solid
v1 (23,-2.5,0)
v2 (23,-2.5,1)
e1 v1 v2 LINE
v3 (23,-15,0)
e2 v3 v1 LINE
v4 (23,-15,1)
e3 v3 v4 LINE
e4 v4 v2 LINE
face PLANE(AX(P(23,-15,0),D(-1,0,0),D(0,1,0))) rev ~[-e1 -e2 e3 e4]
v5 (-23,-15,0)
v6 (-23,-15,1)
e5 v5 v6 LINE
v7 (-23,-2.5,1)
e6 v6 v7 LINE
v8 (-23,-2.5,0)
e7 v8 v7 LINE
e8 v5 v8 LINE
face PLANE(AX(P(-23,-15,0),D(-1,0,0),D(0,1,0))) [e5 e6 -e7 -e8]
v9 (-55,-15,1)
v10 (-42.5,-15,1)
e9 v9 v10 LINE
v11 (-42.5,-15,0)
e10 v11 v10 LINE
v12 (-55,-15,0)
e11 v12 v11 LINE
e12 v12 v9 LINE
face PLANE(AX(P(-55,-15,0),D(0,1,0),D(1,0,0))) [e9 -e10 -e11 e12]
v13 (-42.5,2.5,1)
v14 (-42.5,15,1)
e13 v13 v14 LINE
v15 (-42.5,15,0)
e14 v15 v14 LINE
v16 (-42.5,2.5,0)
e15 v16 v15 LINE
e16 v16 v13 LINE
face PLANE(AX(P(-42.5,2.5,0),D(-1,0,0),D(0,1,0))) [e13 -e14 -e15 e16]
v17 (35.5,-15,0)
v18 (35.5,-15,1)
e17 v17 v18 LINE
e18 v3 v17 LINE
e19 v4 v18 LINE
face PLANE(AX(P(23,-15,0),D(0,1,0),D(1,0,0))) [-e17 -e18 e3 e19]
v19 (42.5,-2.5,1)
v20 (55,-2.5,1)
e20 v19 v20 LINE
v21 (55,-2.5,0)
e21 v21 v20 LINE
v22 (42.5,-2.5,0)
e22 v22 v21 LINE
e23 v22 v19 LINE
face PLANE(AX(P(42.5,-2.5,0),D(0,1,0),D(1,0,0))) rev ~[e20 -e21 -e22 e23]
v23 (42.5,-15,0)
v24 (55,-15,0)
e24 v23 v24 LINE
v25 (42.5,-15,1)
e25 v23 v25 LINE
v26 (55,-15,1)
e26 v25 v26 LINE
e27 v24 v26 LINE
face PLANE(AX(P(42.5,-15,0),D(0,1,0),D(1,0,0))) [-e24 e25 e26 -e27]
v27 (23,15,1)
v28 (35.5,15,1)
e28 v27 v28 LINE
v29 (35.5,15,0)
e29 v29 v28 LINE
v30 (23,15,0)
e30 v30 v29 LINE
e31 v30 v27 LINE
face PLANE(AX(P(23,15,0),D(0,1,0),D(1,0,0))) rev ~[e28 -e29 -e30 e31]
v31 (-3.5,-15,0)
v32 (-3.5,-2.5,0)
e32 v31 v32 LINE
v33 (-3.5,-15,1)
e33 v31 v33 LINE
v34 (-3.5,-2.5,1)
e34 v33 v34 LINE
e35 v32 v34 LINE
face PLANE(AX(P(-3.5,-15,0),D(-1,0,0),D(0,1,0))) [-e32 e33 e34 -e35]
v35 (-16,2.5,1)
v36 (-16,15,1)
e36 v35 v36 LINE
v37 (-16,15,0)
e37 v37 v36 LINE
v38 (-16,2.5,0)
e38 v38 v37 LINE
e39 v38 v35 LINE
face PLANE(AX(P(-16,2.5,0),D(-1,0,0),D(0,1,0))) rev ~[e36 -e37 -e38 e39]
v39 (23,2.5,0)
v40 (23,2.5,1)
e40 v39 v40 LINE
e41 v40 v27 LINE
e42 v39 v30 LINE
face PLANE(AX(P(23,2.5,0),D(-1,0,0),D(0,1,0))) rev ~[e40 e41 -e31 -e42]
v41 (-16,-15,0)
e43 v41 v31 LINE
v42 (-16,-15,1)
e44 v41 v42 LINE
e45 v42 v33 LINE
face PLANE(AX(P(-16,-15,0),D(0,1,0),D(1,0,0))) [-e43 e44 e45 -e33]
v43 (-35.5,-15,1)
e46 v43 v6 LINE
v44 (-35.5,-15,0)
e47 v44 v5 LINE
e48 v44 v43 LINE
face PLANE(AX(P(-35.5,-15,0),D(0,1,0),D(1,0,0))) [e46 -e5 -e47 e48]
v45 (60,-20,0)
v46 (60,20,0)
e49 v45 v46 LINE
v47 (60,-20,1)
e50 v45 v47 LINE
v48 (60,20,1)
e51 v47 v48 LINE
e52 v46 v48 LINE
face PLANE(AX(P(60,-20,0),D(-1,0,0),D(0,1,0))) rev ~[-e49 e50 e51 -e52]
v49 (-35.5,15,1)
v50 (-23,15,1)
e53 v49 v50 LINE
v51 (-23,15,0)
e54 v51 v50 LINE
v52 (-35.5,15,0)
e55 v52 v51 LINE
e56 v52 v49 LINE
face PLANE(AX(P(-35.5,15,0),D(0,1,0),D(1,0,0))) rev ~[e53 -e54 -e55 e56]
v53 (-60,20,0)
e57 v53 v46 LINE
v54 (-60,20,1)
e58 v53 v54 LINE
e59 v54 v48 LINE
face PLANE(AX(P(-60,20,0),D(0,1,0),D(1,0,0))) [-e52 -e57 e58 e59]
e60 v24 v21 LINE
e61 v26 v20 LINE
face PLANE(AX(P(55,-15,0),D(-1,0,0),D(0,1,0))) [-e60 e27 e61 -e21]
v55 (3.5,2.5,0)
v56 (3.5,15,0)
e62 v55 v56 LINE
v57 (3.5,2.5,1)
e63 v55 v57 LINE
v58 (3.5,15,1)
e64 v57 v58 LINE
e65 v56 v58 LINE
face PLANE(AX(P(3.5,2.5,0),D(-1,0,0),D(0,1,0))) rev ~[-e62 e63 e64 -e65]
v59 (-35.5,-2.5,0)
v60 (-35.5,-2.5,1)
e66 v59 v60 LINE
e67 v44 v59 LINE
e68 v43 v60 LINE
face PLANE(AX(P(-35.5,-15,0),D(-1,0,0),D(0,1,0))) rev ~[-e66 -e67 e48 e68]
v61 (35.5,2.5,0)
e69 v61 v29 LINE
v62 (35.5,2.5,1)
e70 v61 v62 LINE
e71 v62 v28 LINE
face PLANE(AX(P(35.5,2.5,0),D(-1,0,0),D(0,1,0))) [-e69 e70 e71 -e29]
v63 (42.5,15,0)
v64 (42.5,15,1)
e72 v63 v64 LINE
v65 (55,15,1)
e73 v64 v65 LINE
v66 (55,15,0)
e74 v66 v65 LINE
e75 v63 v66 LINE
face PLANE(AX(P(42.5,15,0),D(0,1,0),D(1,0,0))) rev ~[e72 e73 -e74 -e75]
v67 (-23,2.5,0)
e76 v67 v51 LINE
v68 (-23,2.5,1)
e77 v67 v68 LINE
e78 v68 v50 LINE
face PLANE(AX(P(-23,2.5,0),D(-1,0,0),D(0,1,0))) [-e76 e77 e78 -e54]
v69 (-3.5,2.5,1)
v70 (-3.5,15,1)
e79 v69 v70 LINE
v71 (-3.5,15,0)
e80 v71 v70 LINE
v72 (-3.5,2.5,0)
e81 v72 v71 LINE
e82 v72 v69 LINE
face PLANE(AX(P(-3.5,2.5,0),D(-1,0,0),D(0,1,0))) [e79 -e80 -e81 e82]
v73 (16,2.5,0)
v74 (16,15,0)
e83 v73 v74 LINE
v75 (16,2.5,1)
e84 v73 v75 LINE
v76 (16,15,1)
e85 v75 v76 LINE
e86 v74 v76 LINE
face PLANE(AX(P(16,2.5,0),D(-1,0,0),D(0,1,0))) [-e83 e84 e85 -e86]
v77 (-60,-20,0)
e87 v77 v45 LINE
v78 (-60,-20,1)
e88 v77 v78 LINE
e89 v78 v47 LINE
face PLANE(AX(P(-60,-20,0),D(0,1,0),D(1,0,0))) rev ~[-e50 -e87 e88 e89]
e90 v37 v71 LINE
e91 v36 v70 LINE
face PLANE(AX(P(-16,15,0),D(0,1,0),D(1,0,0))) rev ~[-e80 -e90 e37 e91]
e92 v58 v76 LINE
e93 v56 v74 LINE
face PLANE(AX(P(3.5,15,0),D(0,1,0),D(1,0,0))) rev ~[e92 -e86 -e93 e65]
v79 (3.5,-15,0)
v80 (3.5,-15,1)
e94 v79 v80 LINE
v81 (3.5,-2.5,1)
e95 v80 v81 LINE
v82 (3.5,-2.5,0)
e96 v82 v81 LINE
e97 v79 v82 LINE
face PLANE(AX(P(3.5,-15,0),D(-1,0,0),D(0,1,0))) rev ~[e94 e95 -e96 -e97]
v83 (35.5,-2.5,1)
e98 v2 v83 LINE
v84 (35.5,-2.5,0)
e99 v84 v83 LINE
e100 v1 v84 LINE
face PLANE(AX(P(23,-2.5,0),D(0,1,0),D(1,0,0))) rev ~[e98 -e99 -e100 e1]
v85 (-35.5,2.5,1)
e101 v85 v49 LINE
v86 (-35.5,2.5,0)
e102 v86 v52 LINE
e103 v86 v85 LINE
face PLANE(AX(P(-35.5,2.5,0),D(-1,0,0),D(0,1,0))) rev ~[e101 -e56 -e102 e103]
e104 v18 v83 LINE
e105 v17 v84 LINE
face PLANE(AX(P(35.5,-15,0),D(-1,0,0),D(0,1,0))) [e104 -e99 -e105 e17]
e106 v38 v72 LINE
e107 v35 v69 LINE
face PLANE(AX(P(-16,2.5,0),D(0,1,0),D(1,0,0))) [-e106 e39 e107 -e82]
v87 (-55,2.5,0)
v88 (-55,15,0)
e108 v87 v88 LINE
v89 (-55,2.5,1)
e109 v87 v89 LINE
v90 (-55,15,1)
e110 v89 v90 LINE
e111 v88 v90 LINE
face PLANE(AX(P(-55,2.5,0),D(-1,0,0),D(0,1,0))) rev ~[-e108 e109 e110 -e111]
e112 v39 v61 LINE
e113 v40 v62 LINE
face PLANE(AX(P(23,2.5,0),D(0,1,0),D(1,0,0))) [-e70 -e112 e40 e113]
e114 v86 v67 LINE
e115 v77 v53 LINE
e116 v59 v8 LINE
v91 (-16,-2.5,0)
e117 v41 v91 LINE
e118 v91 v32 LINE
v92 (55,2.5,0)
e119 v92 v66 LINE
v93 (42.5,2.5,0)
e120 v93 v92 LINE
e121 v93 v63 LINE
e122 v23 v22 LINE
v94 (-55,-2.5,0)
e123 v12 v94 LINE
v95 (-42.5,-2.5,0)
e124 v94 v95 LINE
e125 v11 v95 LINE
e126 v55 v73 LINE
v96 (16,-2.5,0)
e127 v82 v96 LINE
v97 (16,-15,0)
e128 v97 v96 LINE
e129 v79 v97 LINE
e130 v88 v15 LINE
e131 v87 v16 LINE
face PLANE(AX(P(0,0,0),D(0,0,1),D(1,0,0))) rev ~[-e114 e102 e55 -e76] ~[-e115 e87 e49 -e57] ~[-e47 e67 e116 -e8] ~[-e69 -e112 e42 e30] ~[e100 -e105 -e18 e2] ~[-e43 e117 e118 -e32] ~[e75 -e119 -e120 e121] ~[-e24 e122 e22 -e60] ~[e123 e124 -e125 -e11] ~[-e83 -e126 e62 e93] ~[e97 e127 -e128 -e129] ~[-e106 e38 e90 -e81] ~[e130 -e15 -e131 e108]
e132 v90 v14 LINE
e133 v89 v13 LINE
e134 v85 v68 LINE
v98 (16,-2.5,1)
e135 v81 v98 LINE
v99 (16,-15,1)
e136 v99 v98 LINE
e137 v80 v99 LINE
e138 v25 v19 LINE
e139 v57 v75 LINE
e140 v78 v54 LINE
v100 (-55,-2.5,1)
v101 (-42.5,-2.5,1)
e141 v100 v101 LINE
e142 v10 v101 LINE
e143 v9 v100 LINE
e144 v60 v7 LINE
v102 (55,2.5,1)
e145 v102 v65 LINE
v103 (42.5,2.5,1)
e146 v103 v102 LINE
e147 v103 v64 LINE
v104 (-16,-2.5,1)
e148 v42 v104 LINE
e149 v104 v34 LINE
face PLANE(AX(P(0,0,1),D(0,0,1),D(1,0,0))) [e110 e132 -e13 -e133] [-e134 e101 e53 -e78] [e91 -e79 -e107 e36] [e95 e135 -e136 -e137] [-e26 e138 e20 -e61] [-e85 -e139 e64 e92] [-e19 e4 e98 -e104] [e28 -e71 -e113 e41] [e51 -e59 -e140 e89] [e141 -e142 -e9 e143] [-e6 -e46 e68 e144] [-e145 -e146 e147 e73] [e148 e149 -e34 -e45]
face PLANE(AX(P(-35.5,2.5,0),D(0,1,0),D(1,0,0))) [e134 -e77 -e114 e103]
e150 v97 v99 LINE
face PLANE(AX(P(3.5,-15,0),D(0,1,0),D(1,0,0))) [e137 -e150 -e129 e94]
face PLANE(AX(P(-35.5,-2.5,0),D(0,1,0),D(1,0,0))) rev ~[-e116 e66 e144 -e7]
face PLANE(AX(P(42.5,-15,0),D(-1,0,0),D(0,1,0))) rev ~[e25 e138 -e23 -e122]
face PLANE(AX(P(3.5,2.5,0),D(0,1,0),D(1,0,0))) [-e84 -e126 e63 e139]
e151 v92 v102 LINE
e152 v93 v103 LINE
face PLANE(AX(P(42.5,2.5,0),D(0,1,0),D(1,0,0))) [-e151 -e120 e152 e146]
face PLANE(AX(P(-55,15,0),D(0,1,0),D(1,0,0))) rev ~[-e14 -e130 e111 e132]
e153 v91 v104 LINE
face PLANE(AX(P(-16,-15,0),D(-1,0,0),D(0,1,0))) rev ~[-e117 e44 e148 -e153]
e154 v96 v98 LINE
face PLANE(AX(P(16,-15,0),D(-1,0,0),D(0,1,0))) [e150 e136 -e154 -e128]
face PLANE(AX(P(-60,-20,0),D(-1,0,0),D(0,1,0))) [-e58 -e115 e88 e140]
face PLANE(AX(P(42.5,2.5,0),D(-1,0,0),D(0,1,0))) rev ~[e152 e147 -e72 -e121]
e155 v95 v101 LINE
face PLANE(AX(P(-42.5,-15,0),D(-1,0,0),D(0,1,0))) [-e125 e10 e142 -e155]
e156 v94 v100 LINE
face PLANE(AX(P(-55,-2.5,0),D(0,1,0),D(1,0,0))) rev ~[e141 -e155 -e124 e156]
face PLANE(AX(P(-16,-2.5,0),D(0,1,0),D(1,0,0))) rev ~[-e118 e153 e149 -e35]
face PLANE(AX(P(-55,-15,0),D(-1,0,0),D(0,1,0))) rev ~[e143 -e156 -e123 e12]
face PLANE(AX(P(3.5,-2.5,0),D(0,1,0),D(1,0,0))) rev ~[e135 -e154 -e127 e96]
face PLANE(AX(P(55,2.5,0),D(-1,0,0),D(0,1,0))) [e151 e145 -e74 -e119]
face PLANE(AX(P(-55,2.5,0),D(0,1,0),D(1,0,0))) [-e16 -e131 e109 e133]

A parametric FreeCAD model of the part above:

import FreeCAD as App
import Part
import Sketcher

V = App.Vector


def add_polygon(sketch, points):
    """Adds a closed chain of lines whose ends are joined by coincident constraints."""
    first, n = sketch.GeometryCount, len(points)
    for a, b in zip(points, points[1:] + points[:1]):
        sketch.addGeometry(Part.LineSegment(App.Vector(*a, 0), App.Vector(*b, 0)), False)
    for i in range(n):
        sketch.addConstraint(Sketcher.Constraint("Coincident", first + i, 2, first + (i + 1) % n, 1))

doc = App.newDocument("Part")
body = doc.addObject("PartDesign::Body", "Body")

sketch1 = doc.addObject("Sketcher::SketchObject", "Sketch")
body.addObject(sketch1)
sketch1.AttachmentSupport = (doc.XY_Plane, [""])
sketch1.MapMode = "FlatFace"
add_polygon(sketch1, [(-60, 20), (-60, -20), (60, -20), (60, 20)])
add_polygon(sketch1, [(-42, -15), (-55, -15), (-55, -2), (-42, -2)])
add_polygon(sketch1, [(-23, -15), (-36, -15), (-36, -2), (-23, -2)])
add_polygon(sketch1, [(-4, -15), (-16, -15), (-16, -2), (-4, -2)])
add_polygon(sketch1, [(16, -15), (4, -15), (4, -2), (16, -2)])
add_polygon(sketch1, [(36, -15), (23, -15), (23, -2), (36, -2)])
add_polygon(sketch1, [(55, -15), (42, -15), (42, -2), (55, -2)])
add_polygon(sketch1, [(-42, 2), (-55, 2), (-55, 15), (-42, 15)])
add_polygon(sketch1, [(-23, 2), (-36, 2), (-36, 15), (-23, 15)])
add_polygon(sketch1, [(-4, 2), (-16, 2), (-16, 15), (-4, 15)])
add_polygon(sketch1, [(16, 2), (4, 2), (4, 15), (16, 15)])
add_polygon(sketch1, [(36, 2), (23, 2), (23, 15), (36, 15)])
add_polygon(sketch1, [(55, 2), (42, 2), (42, 15), (55, 15)])
sketch1.addConstraint(Sketcher.Constraint("Vertical", 0))
sketch1.addConstraint(Sketcher.Constraint("Horizontal", 1))
sketch1.addConstraint(Sketcher.Constraint("Vertical", 2))
sketch1.addConstraint(Sketcher.Constraint("Horizontal", 3))
sketch1.addConstraint(Sketcher.Constraint("Horizontal", 4))
sketch1.addConstraint(Sketcher.Constraint("Vertical", 5))
sketch1.addConstraint(Sketcher.Constraint("Horizontal", 6))
sketch1.addConstraint(Sketcher.Constraint("Vertical", 7))
sketch1.addConstraint(Sketcher.Constraint("Horizontal", 8))
sketch1.addConstraint(Sketcher.Constraint("Vertical", 9))
sketch1.addConstraint(Sketcher.Constraint("Horizontal", 10))
sketch1.addConstraint(Sketcher.Constraint("Vertical", 11))
sketch1.addConstraint(Sketcher.Constraint("Horizontal", 12))
sketch1.addConstraint(Sketcher.Constraint("Vertical", 13))
sketch1.addConstraint(Sketcher.Constraint("Horizontal", 14))
sketch1.addConstraint(Sketcher.Constraint("Vertical", 15))
sketch1.addConstraint(Sketcher.Constraint("Horizontal", 16))
sketch1.addConstraint(Sketcher.Constraint("Vertical", 17))
sketch1.addConstraint(Sketcher.Constraint("Horizontal", 18))
sketch1.addConstraint(Sketcher.Constraint("Vertical", 19))
sketch1.addConstraint(Sketcher.Constraint("Horizontal", 20))
sketch1.addConstraint(Sketcher.Constraint("Vertical", 21))
sketch1.addConstraint(Sketcher.Constraint("Horizontal", 22))
sketch1.addConstraint(Sketcher.Constraint("Vertical", 23))
sketch1.addConstraint(Sketcher.Constraint("Horizontal", 24))
sketch1.addConstraint(Sketcher.Constraint("Vertical", 25))
sketch1.addConstraint(Sketcher.Constraint("Horizontal", 26))
sketch1.addConstraint(Sketcher.Constraint("Vertical", 27))
sketch1.addConstraint(Sketcher.Constraint("Horizontal", 28))
sketch1.addConstraint(Sketcher.Constraint("Vertical", 29))
sketch1.addConstraint(Sketcher.Constraint("Horizontal", 30))
sketch1.addConstraint(Sketcher.Constraint("Vertical", 31))
sketch1.addConstraint(Sketcher.Constraint("Horizontal", 32))
sketch1.addConstraint(Sketcher.Constraint("Vertical", 33))
sketch1.addConstraint(Sketcher.Constraint("Horizontal", 34))
sketch1.addConstraint(Sketcher.Constraint("Vertical", 35))
sketch1.addConstraint(Sketcher.Constraint("Horizontal", 36))
sketch1.addConstraint(Sketcher.Constraint("Vertical", 37))
sketch1.addConstraint(Sketcher.Constraint("Horizontal", 38))
sketch1.addConstraint(Sketcher.Constraint("Vertical", 39))
sketch1.addConstraint(Sketcher.Constraint("Horizontal", 40))
sketch1.addConstraint(Sketcher.Constraint("Vertical", 41))
sketch1.addConstraint(Sketcher.Constraint("Horizontal", 42))
sketch1.addConstraint(Sketcher.Constraint("Vertical", 43))
sketch1.addConstraint(Sketcher.Constraint("Horizontal", 44))
sketch1.addConstraint(Sketcher.Constraint("Vertical", 45))
sketch1.addConstraint(Sketcher.Constraint("Horizontal", 46))
sketch1.addConstraint(Sketcher.Constraint("Vertical", 47))
sketch1.addConstraint(Sketcher.Constraint("Horizontal", 48))
sketch1.addConstraint(Sketcher.Constraint("Vertical", 49))
sketch1.addConstraint(Sketcher.Constraint("Horizontal", 50))
sketch1.addConstraint(Sketcher.Constraint("Vertical", 51))
sketch1.addConstraint(Sketcher.Constraint("Symmetric", 0, 2, 2, 2, -1, 1))
sketch1.addConstraint(Sketcher.Constraint("Symmetric", 26, 2, 28, 2, -1, 1))
sketch1.addConstraint(Sketcher.Constraint("Symmetric", 24, 2, 30, 2, -1, 1))
sketch1.addConstraint(Sketcher.Constraint("Symmetric", 22, 2, 32, 2, -1, 1))
sketch1.addConstraint(Sketcher.Constraint("Symmetric", 20, 2, 34, 2, -1, 1))
sketch1.addConstraint(Sketcher.Constraint("Symmetric", 18, 2, 36, 2, -1, 1))
sketch1.addConstraint(Sketcher.Constraint("Symmetric", 16, 2, 38, 2, -1, 1))
sketch1.addConstraint(Sketcher.Constraint("Symmetric", 14, 2, 40, 2, -1, 1))
sketch1.addConstraint(Sketcher.Constraint("Symmetric", 12, 2, 42, 2, -1, 1))
sketch1.addConstraint(Sketcher.Constraint("Symmetric", 10, 2, 44, 2, -1, 1))
sketch1.addConstraint(Sketcher.Constraint("Symmetric", 8, 2, 46, 2, -1, 1))
sketch1.addConstraint(Sketcher.Constraint("Symmetric", 6, 2, 48, 2, -1, 1))
sketch1.addConstraint(Sketcher.Constraint("Symmetric", 4, 2, 50, 2, -1, 1))
sketch1.addConstraint(Sketcher.Constraint("Symmetric", 15, 2, 16, 2, -2))
sketch1.addConstraint(Sketcher.Constraint("Symmetric", 13, 2, 18, 2, -2))
sketch1.addConstraint(Sketcher.Constraint("Symmetric", 11, 2, 20, 2, -2))
sketch1.addConstraint(Sketcher.Constraint("Symmetric", 9, 2, 22, 2, -2))
sketch1.addConstraint(Sketcher.Constraint("Symmetric", 7, 2, 24, 2, -2))
sketch1.addConstraint(Sketcher.Constraint("Symmetric", 5, 2, 26, 2, -2))
sketch1.addConstraint(Sketcher.Constraint("Horizontal", 7, 2, 8, 2))
sketch1.addConstraint(Sketcher.Constraint("Horizontal", 6, 2, 9, 2))
sketch1.addConstraint(Sketcher.Constraint("Horizontal", 11, 2, 12, 2))
sketch1.addConstraint(Sketcher.Constraint("Horizontal", 10, 2, 13, 2))
sketch1.addConstraint(Sketcher.Constraint("Equal", 6, 8))
sketch1.addConstraint(Sketcher.Constraint("Equal", 10, 12))
sketch1.addConstraint(Sketcher.Constraint("Equal", 50, 5))
sketch1.addConstraint(Sketcher.Constraint("DistanceX", 1, 1, 1, 2, 120.0))
sketch1.addConstraint(Sketcher.Constraint("DistanceY", 0, 2, 0, 1, 40.0))
sketch1.addConstraint(Sketcher.Constraint("DistanceX", 4, 2, 4, 1, 12.5))
sketch1.addConstraint(Sketcher.Constraint("DistanceX", 4, 2, -1, 1, 55.0))
sketch1.addConstraint(Sketcher.Constraint("DistanceY", 4, 2, -1, 1, 15.0))
sketch1.addConstraint(Sketcher.Constraint("DistanceX", 10, 2, -1, 1, 23.0))
sketch1.addConstraint(Sketcher.Constraint("DistanceX", 12, 2, -1, 1, 16.0))
pad1 = doc.addObject("PartDesign::Pad", "Pad")
body.addObject(pad1)
pad1.Profile = sketch1
pad1.Length = 1

doc.recompute()
